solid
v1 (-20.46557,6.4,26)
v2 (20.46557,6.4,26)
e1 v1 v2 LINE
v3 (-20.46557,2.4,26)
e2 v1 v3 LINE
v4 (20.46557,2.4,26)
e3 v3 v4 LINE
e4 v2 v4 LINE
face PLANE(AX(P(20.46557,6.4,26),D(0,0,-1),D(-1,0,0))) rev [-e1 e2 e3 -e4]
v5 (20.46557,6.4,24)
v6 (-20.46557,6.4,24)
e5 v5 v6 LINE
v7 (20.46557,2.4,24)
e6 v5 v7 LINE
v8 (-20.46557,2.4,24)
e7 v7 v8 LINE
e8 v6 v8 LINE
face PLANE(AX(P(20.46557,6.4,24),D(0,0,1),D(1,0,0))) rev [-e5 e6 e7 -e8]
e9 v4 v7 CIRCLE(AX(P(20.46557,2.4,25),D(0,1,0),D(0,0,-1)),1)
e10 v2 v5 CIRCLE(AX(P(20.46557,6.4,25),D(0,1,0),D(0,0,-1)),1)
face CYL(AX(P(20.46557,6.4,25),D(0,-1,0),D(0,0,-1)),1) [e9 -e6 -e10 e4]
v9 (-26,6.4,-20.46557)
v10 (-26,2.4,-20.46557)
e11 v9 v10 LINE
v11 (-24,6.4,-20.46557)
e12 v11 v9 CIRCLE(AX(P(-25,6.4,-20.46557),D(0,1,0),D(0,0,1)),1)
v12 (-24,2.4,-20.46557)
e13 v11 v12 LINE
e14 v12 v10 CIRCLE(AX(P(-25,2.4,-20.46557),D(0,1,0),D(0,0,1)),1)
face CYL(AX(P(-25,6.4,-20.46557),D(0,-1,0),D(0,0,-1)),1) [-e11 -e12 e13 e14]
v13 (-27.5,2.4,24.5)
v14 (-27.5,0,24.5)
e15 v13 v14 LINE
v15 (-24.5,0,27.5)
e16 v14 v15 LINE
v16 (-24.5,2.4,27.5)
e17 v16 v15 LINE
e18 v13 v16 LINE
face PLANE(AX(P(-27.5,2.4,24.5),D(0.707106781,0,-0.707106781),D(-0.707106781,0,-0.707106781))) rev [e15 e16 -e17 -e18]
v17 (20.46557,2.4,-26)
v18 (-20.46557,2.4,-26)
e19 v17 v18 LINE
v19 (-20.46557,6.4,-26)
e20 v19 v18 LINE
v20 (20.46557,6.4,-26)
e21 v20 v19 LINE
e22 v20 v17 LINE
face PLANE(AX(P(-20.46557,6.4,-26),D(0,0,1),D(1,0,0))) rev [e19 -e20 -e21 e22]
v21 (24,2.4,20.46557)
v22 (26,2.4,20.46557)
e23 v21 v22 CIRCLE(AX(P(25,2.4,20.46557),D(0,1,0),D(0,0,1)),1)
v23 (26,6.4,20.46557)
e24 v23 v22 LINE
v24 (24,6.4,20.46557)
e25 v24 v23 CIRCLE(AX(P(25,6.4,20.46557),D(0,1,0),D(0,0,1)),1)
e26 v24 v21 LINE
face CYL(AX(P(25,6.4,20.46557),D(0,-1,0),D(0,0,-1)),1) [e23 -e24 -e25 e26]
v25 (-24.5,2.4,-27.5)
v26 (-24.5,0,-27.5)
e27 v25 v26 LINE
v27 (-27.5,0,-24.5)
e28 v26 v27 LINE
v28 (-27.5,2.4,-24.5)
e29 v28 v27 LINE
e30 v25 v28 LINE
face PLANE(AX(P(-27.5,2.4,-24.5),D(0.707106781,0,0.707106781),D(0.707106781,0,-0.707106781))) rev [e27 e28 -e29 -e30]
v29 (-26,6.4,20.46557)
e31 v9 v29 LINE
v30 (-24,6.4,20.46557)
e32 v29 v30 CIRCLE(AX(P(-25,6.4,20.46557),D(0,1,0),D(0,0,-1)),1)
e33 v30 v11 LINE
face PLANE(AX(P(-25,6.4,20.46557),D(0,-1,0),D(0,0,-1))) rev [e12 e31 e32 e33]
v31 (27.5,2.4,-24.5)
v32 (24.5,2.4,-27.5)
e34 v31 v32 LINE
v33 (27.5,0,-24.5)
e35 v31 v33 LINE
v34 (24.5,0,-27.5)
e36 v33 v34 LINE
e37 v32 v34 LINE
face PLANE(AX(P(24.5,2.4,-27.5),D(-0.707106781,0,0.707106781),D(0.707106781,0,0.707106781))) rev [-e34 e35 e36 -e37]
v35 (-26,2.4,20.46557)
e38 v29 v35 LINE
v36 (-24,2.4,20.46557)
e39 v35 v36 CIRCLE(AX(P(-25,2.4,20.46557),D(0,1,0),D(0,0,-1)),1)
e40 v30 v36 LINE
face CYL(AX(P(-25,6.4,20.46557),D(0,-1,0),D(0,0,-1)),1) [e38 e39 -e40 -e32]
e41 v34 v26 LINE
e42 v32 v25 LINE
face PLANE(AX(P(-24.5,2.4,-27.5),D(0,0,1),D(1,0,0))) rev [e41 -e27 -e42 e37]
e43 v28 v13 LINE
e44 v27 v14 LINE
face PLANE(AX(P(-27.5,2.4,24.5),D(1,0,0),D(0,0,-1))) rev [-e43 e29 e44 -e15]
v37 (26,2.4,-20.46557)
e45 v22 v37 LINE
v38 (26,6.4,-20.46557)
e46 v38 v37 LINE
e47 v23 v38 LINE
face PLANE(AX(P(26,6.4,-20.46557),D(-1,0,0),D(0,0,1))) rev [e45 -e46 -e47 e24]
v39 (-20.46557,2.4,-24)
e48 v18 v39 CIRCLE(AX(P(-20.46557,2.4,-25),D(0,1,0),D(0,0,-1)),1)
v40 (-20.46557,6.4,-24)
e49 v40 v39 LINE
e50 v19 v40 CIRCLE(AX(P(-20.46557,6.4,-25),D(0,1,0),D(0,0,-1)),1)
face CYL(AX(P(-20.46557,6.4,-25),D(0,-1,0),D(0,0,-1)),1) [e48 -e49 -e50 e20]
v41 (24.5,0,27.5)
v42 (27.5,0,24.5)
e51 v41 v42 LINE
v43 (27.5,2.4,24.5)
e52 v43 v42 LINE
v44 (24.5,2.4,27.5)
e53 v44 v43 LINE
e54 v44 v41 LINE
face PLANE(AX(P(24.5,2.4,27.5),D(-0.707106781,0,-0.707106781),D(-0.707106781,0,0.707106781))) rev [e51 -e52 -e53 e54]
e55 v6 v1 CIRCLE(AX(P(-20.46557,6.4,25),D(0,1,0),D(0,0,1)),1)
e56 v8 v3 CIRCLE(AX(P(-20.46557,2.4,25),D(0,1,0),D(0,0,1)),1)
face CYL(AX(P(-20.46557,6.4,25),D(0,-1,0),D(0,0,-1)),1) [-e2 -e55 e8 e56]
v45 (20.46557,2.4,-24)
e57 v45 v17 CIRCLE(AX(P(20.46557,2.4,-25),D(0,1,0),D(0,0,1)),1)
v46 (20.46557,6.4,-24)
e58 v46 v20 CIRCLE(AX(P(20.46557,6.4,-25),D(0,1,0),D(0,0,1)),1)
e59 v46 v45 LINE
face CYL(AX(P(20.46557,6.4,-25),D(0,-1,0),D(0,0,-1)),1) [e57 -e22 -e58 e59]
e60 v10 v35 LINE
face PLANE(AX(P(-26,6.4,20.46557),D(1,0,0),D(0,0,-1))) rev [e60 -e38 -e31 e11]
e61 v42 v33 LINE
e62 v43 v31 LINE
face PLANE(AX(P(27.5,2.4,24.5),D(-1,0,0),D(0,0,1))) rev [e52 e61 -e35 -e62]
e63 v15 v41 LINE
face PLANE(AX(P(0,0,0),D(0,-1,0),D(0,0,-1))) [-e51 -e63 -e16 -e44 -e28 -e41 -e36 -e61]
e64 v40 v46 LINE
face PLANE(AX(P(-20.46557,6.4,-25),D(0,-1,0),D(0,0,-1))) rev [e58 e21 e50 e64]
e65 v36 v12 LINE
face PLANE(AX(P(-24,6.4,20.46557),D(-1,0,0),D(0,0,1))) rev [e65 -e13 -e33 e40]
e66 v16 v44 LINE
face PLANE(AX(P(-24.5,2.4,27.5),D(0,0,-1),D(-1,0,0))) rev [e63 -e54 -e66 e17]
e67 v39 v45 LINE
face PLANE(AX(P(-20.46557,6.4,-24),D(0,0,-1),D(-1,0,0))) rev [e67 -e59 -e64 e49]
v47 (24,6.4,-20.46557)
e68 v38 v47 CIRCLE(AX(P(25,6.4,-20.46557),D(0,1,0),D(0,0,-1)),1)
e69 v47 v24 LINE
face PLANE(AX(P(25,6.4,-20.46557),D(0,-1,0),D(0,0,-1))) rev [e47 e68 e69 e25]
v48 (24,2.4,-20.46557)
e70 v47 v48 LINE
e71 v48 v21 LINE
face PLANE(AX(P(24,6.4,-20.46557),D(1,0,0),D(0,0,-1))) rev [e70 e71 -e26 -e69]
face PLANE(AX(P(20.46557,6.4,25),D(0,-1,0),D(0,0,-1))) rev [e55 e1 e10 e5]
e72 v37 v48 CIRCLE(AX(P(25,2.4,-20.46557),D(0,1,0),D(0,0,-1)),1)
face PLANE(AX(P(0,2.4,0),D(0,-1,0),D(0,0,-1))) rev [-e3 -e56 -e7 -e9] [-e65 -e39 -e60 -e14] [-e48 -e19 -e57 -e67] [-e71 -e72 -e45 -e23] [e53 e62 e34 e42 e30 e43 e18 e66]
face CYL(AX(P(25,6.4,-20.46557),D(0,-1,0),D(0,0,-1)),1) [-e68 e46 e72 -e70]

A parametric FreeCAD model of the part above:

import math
import FreeCAD as App
import Part
import Sketcher

V = App.Vector
Q = App.Units.Quantity


def add_polygon(sketch, points):
    """Adds a closed chain of lines whose ends are joined by coincident constraints."""
    first, n = sketch.GeometryCount, len(points)
    for a, b in zip(points, points[1:] + points[:1]):
        sketch.addGeometry(Part.LineSegment(App.Vector(*a, 0), App.Vector(*b, 0)), False)
    for i in range(n):
        sketch.addConstraint(Sketcher.Constraint("Coincident", first + i, 2, first + (i + 1) % n, 1))

doc = App.newDocument("Part")
body = doc.addObject("PartDesign::Body", "Body")

sketch1 = doc.addObject("Sketcher::SketchObject", "Sketch")
body.addObject(sketch1)
sketch1.AttachmentSupport = (doc.XZ_Plane, [""])
sketch1.MapMode = "FlatFace"
add_polygon(sketch1, [(-24.5, -27.5), (-27.5, -24.5), (-27.5, 24.5), (-24.5, 27.5), (24.5, 27.5), (27.5, 24.5), (27.5, -24.5), (24.5, -27.5)])
sketch1.addConstraint([
    Sketcher.Constraint("Vertical", 1),
    Sketcher.Constraint("Horizontal", 3),
    Sketcher.Constraint("Vertical", 5),
    Sketcher.Constraint("Horizontal", 7),
    Sketcher.Constraint("Symmetric", 0, 2, 4, 2, -1, 1),
    Sketcher.Constraint("Symmetric", 2, 2, 6, 2, -1, 1),
    Sketcher.Constraint("Perpendicular", 0, 2),
    Sketcher.Constraint("Perpendicular", 2, 4),
    Sketcher.Constraint("Perpendicular", 4, 6),
    Sketcher.Constraint("Horizontal", 1, 2, 4, 2),
    Sketcher.Constraint("Vertical", 3, 2, 6, 2),
    Sketcher.Constraint("Equal", 7, 1),
    Sketcher.Constraint("DistanceX", 3, 1, 3, 2, Q("49 mm")),
    Sketcher.Constraint("DistanceX", 1, 2, 2, 2, Q("3 mm")),
])
pad1 = doc.addObject("PartDesign::Pad", "Pad")
body.addObject(pad1)
pad1.Profile = sketch1
pad1.Length = 2.4
pad1.Reversed = True

sketch2 = doc.addObject("Sketcher::SketchObject", "Sketch001")
body.addObject(sketch2)
sketch2.AttachmentSupport = (doc.XZ_Plane, [""])
sketch2.MapMode = "FlatFace"
sketch2.AttachmentOffset = App.Placement(V(0, 0, -2.4), App.Rotation())
sketch2.addGeometry([
    Part.LineSegment(V(-24, 20.5, 0), V(-24, -20.5, 0)),
    Part.ArcOfCircle(Part.Circle(V(-25, -20.5, 0), V(0, 0, 1), 1), math.radians(180), math.radians(360)),
    Part.LineSegment(V(-26, -20.5, 0), V(-26, 20.5, 0)),
    Part.ArcOfCircle(Part.Circle(V(-25, 20.5, 0), V(0, 0, 1), 1), math.radians(0), math.radians(180)),
    Part.LineSegment(V(-20.5, -24, 0), V(20.5, -24, 0)),
    Part.ArcOfCircle(Part.Circle(V(20.5, -25, 0), V(0, 0, 1), 1), math.radians(-90), math.radians(90)),
    Part.LineSegment(V(20.5, -26, 0), V(-20.5, -26, 0)),
    Part.ArcOfCircle(Part.Circle(V(-20.5, -25, 0), V(0, 0, 1), 1), math.radians(90), math.radians(270)),
    Part.LineSegment(V(24, -20.5, 0), V(24, 20.5, 0)),
    Part.ArcOfCircle(Part.Circle(V(25, 20.5, 0), V(0, 0, 1), 1), math.radians(0), math.radians(180)),
    Part.LineSegment(V(26, 20.5, 0), V(26, -20.5, 0)),
    Part.ArcOfCircle(Part.Circle(V(25, -20.5, 0), V(0, 0, 1), 1), math.radians(180), math.radians(360)),
    Part.LineSegment(V(20.5, 24, 0), V(-20.5, 24, 0)),
    Part.ArcOfCircle(Part.Circle(V(-20.5, 25, 0), V(0, 0, 1), 1), math.radians(90), math.radians(270)),
    Part.LineSegment(V(-20.5, 26, 0), V(20.5, 26, 0)),
    Part.ArcOfCircle(Part.Circle(V(20.5, 25, 0), V(0, 0, 1), 1), math.radians(-90), math.radians(90)),
], False)
sketch2.addConstraint([
    Sketcher.Constraint("Tangent", 0, 2, 1, 2),
    Sketcher.Constraint("Tangent", 1, 1, 2, 1),
    Sketcher.Constraint("Tangent", 2, 2, 3, 2),
    Sketcher.Constraint("Tangent", 3, 1, 0, 1),
    Sketcher.Constraint("Tangent", 4, 2, 5, 2),
    Sketcher.Constraint("Tangent", 5, 1, 6, 1),
    Sketcher.Constraint("Tangent", 6, 2, 7, 2),
    Sketcher.Constraint("Tangent", 7, 1, 4, 1),
    Sketcher.Constraint("Tangent", 8, 2, 9, 2),
    Sketcher.Constraint("Tangent", 9, 1, 10, 1),
    Sketcher.Constraint("Tangent", 10, 2, 11, 2),
    Sketcher.Constraint("Tangent", 11, 1, 8, 1),
    Sketcher.Constraint("Tangent", 12, 2, 13, 2),
    Sketcher.Constraint("Tangent", 13, 1, 14, 1),
    Sketcher.Constraint("Tangent", 14, 2, 15, 2),
    Sketcher.Constraint("Tangent", 15, 1, 12, 1),
    Sketcher.Constraint("Vertical", 0),
    Sketcher.Constraint("Vertical", 2),
    Sketcher.Constraint("Horizontal", 4),
    Sketcher.Constraint("Horizontal", 6),
    Sketcher.Constraint("Vertical", 8),
    Sketcher.Constraint("Vertical", 10),
    Sketcher.Constraint("Horizontal", 12),
    Sketcher.Constraint("Horizontal", 14),
    Sketcher.Constraint("Equal", 3, 5),
    Sketcher.Constraint("Equal", 7, 9),
    Sketcher.Constraint("Equal", 11, 13),
    Sketcher.Constraint("Symmetric", 1, 3, 9, 3, -1, 1),
    Sketcher.Constraint("Symmetric", 5, 3, 13, 3, -1, 1),
    Sketcher.Constraint("Horizontal", 3, 3, 9, 3),
    Sketcher.Constraint("Horizontal", 1, 3, 11, 3),
    Sketcher.Constraint("Vertical", 7, 3, 13, 3),
    Sketcher.Constraint("Vertical", 5, 3, 15, 3),
    Sketcher.Constraint("Equal", 14, 0),
    Sketcher.Constraint("Radius", 1, Q("1 mm")),
    Sketcher.Constraint("DistanceX", 1, 3, -1, 1, Q("25 mm")),
    Sketcher.Constraint("DistanceY", 5, 3, -1, 1, Q("25 mm")),
    Sketcher.Constraint("DistanceX", 4, 1, 4, 2, Q("40.931141 mm")),
])
pad2 = doc.addObject("PartDesign::Pad", "Pad001")
body.addObject(pad2)
pad2.Profile = sketch2
pad2.Length = 4
pad2.Reversed = True

doc.recompute()
